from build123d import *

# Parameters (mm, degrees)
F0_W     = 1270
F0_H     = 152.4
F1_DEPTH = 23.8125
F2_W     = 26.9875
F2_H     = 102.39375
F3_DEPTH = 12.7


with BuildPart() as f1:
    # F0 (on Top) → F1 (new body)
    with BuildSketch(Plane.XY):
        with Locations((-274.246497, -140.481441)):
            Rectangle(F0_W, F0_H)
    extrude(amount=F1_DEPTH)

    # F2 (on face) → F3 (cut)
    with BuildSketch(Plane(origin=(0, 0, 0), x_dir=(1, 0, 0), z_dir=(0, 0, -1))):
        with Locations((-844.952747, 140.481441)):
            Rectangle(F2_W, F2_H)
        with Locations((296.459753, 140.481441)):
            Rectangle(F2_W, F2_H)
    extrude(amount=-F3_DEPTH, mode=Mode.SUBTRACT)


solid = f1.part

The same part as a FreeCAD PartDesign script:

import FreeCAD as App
import Part
import Sketcher
from FreeCAD import Vector
Q = App.Units.Quantity


def add_polygon(sketch, points):
    """Adds a closed chain of lines whose ends are joined by coincident constraints."""
    first, n = sketch.GeometryCount, len(points)
    for a, b in zip(points, points[1:] + points[:1]):
        sketch.addGeometry(Part.LineSegment(App.Vector(*a, 0), App.Vector(*b, 0)), False)
    for i in range(n):
        sketch.addConstraint(Sketcher.Constraint("Coincident", first + i, 2, first + (i + 1) % n, 1))

doc = App.newDocument("Part")
body = doc.addObject("PartDesign::Body", "Body")

sketch1 = doc.addObject("Sketcher::SketchObject", "Sketch")
body.addObject(sketch1)
sketch1.AttachmentSupport = (doc.XY_Plane, [""])
sketch1.MapMode = "FlatFace"
add_polygon(sketch1, [(-909, -64), (-909, -217), (361, -217), (361, -64)])
sketch1.addConstraint([
    Sketcher.Constraint("Vertical", 0),
    Sketcher.Constraint("Horizontal", 1),
    Sketcher.Constraint("Vertical", 2),
    Sketcher.Constraint("Horizontal", 3),
    Sketcher.Constraint("DistanceX", 1, 1, 1, 2, Q("50 in")),
    Sketcher.Constraint("DistanceY", 0, 2, 0, 1, Q("6 in")),
    Sketcher.Constraint("DistanceY", 0, 2, -1, 1, Q("216.681441 mm")),
    Sketcher.Constraint("DistanceX", 0, 2, -1, 1, Q("909.246497 mm")),
])
pad1 = doc.addObject("PartDesign::Pad", "Pad")
body.addObject(pad1)
pad1.Profile = sketch1
pad1.Length = Q("0.9375 in")

sketch2 = doc.addObject("Sketcher::SketchObject", "Sketch001")
body.addObject(sketch2)
sketch2.AttachmentSupport = (doc.XY_Plane, [""])
sketch2.MapMode = "FlatFace"
add_polygon(sketch2, [(-858, -192), (-858, -89), (-831, -89), (-831, -192)])
add_polygon(sketch2, [(283, -192), (283, -89), (310, -89), (310, -192)])
sketch2.addConstraint([
    Sketcher.Constraint("Vertical", 0),
    Sketcher.Constraint("Horizontal", 1),
    Sketcher.Constraint("Vertical", 2),
    Sketcher.Constraint("Horizontal", 3),
    Sketcher.Constraint("Vertical", 4),
    Sketcher.Constraint("Horizontal", 5),
    Sketcher.Constraint("Vertical", 6),
    Sketcher.Constraint("Horizontal", 7),
    Sketcher.Constraint("Horizontal", 1, 2, 4, 2),
    Sketcher.Constraint("Horizontal", 3, 2, 6, 2),
    Sketcher.Constraint("Equal", 3, 5),
    Sketcher.Constraint("DistanceX", 0, 2, 5, 2, Q("46 in")),
    Sketcher.Constraint("DistanceX", 1, 1, 1, 2, Q("1.0625 in")),
    Sketcher.Constraint("DistanceY", 0, 1, 0, 2, Q("4.03125 in")),
    Sketcher.Constraint("DistanceX", 0, 2, -1, 1, Q("858.446497 mm")),
    Sketcher.Constraint("DistanceY", 0, 2, -1, 1, Q("89.284566 mm")),
])
pocket1 = doc.addObject("PartDesign::Pocket", "Pocket")
body.addObject(pocket1)
pocket1.Profile = sketch2
pocket1.Length = Q("0.5 in")
pocket1.Reversed = True

doc.recompute()
